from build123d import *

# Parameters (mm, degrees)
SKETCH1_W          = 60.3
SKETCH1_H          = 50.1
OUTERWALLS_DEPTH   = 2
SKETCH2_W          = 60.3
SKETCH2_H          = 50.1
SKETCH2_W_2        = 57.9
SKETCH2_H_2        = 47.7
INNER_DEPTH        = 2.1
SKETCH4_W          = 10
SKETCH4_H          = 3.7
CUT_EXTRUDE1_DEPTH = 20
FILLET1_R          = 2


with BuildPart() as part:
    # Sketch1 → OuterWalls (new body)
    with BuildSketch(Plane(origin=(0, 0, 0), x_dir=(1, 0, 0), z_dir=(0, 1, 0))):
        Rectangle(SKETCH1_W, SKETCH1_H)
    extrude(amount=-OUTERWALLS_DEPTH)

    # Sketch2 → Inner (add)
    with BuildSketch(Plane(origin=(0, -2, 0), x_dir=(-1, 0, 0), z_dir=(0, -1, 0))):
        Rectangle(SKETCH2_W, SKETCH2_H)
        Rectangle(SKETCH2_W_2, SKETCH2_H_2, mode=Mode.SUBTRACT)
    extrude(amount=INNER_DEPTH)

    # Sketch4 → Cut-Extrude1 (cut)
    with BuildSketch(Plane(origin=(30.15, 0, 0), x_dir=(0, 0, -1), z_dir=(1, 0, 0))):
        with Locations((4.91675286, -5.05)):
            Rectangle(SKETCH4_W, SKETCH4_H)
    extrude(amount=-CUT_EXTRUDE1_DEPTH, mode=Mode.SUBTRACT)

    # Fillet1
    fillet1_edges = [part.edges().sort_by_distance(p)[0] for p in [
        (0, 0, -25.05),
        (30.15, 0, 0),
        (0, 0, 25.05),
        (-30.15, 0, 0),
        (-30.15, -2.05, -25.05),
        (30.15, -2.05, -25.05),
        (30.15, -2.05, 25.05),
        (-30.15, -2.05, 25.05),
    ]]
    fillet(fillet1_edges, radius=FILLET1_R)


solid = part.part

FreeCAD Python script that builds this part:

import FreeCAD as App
import Part
import Sketcher


def edges_at(feature, points):
    """Names of the edges that pass closest to the given points."""
    edges = feature.Shape.Edges
    near = lambda p: min(range(len(edges)), key=lambda i: edges[i].distToShape(Part.Vertex(*p))[0])
    return sorted({f"Edge{near(p) + 1}" for p in points})

doc = App.newDocument("Part")
body = doc.addObject("PartDesign::Body", "Body")

sketch1 = doc.addObject("Sketcher::SketchObject", "Sketch")
body.addObject(sketch1)
sketch1.AttachmentSupport = (doc.XZ_Plane, [""])
sketch1.MapMode = "FlatFace"
sketch1.addGeometry(Part.LineSegment(App.Vector(-30, -25, 0), App.Vector(-30, 25, 0)), False)
sketch1.addGeometry(Part.LineSegment(App.Vector(-30, 25, 0), App.Vector(30, 25, 0)), False)
sketch1.addGeometry(Part.LineSegment(App.Vector(30, 25, 0), App.Vector(30, -25, 0)), False)
sketch1.addGeometry(Part.LineSegment(App.Vector(30, -25, 0), App.Vector(-30, -25, 0)), False)
sketch1.addConstraint(Sketcher.Constraint("Coincident", 0, 2, 1, 1))
sketch1.addConstraint(Sketcher.Constraint("Coincident", 1, 2, 2, 1))
sketch1.addConstraint(Sketcher.Constraint("Coincident", 2, 2, 3, 1))
sketch1.addConstraint(Sketcher.Constraint("Coincident", 3, 2, 0, 1))
sketch1.addConstraint(Sketcher.Constraint("Vertical", 0))
sketch1.addConstraint(Sketcher.Constraint("Horizontal", 1))
sketch1.addConstraint(Sketcher.Constraint("Vertical", 2))
sketch1.addConstraint(Sketcher.Constraint("Horizontal", 3))
sketch1.addConstraint(Sketcher.Constraint("Symmetric", 0, 2, 2, 2, -1, 1))
sketch1.addConstraint(Sketcher.Constraint("DistanceX", 1, 1, 1, 2, 60.3))
sketch1.addConstraint(Sketcher.Constraint("DistanceY", 0, 1, 0, 2, 50.1))
pad1 = doc.addObject("PartDesign::Pad", "Pad")
body.addObject(pad1)
pad1.Profile = sketch1
pad1.Length = 2

sketch2 = doc.addObject("Sketcher::SketchObject", "Sketch001")
body.addObject(sketch2)
sketch2.AttachmentSupport = (doc.XZ_Plane, [""])
sketch2.MapMode = "FlatFace"
sketch2.AttachmentOffset = App.Placement(App.Vector(0, 0, 2), App.Rotation())
sketch2.addGeometry(Part.LineSegment(App.Vector(30, -25, 0), App.Vector(30, 25, 0)), False)
sketch2.addGeometry(Part.LineSegment(App.Vector(30, 25, 0), App.Vector(-30, 25, 0)), False)
sketch2.addGeometry(Part.LineSegment(App.Vector(-30, 25, 0), App.Vector(-30, -25, 0)), False)
sketch2.addGeometry(Part.LineSegment(App.Vector(-30, -25, 0), App.Vector(30, -25, 0)), False)
sketch2.addGeometry(Part.LineSegment(App.Vector(-29, 24, 0), App.Vector(29, 24, 0)), False)
sketch2.addGeometry(Part.LineSegment(App.Vector(29, 24, 0), App.Vector(29, -24, 0)), False)
sketch2.addGeometry(Part.LineSegment(App.Vector(29, -24, 0), App.Vector(-29, -24, 0)), False)
sketch2.addGeometry(Part.LineSegment(App.Vector(-29, -24, 0), App.Vector(-29, 24, 0)), False)
sketch2.addConstraint(Sketcher.Constraint("Coincident", 0, 2, 1, 1))
sketch2.addConstraint(Sketcher.Constraint("Coincident", 1, 2, 2, 1))
sketch2.addConstraint(Sketcher.Constraint("Coincident", 2, 2, 3, 1))
sketch2.addConstraint(Sketcher.Constraint("Coincident", 3, 2, 0, 1))
sketch2.addConstraint(Sketcher.Constraint("Coincident", 4, 2, 5, 1))
sketch2.addConstraint(Sketcher.Constraint("Coincident", 5, 2, 6, 1))
sketch2.addConstraint(Sketcher.Constraint("Coincident", 6, 2, 7, 1))
sketch2.addConstraint(Sketcher.Constraint("Coincident", 7, 2, 4, 1))
sketch2.addConstraint(Sketcher.Constraint("Vertical", 0))
sketch2.addConstraint(Sketcher.Constraint("Horizontal", 1))
sketch2.addConstraint(Sketcher.Constraint("Vertical", 2))
sketch2.addConstraint(Sketcher.Constraint("Horizontal", 3))
sketch2.addConstraint(Sketcher.Constraint("Horizontal", 4))
sketch2.addConstraint(Sketcher.Constraint("Vertical", 5))
sketch2.addConstraint(Sketcher.Constraint("Horizontal", 6))
sketch2.addConstraint(Sketcher.Constraint("Vertical", 7))
sketch2.addConstraint(Sketcher.Constraint("Symmetric", 0, 2, 2, 2, -1, 1))
sketch2.addConstraint(Sketcher.Constraint("Symmetric", 4, 2, 6, 2, -1, 1))
sketch2.addConstraint(Sketcher.Constraint("DistanceX", 1, 2, 1, 1, 60.3))
sketch2.addConstraint(Sketcher.Constraint("DistanceX", 4, 1, 4, 2, 57.9))
sketch2.addConstraint(Sketcher.Constraint("DistanceY", 0, 1, 0, 2, 50.1))
sketch2.addConstraint(Sketcher.Constraint("DistanceY", 5, 2, 5, 1, 47.7))
pad2 = doc.addObject("PartDesign::Pad", "Pad001")
body.addObject(pad2)
pad2.Profile = sketch2
pad2.Length = 2.1

sketch3 = doc.addObject("Sketcher::SketchObject", "Sketch002")
body.addObject(sketch3)
sketch3.AttachmentSupport = (doc.YZ_Plane, [""])
sketch3.MapMode = "FlatFace"
sketch3.AttachmentOffset = App.Placement(App.Vector(0, 0, 30.15), App.Rotation())
sketch3.addGeometry(Part.LineSegment(App.Vector(-3.2, 0.1, 0), App.Vector(-6.9, 0.1, 0)), False)
sketch3.addGeometry(Part.LineSegment(App.Vector(-6.9, 0.1, 0), App.Vector(-6.9, -9.9, 0)), False)
sketch3.addGeometry(Part.LineSegment(App.Vector(-6.9, -9.9, 0), App.Vector(-3.2, -9.9, 0)), False)
sketch3.addGeometry(Part.LineSegment(App.Vector(-3.2, -9.9, 0), App.Vector(-3.2, 0.1, 0)), False)
sketch3.addConstraint(Sketcher.Constraint("Coincident", 0, 2, 1, 1))
sketch3.addConstraint(Sketcher.Constraint("Coincident", 1, 2, 2, 1))
sketch3.addConstraint(Sketcher.Constraint("Coincident", 2, 2, 3, 1))
sketch3.addConstraint(Sketcher.Constraint("Coincident", 3, 2, 0, 1))
sketch3.addConstraint(Sketcher.Constraint("Horizontal", 0))
sketch3.addConstraint(Sketcher.Constraint("Vertical", 1))
sketch3.addConstraint(Sketcher.Constraint("Horizontal", 2))
sketch3.addConstraint(Sketcher.Constraint("Vertical", 3))
sketch3.addConstraint(Sketcher.Constraint("DistanceY", 1, 2, 1, 1, 10.0))
sketch3.addConstraint(Sketcher.Constraint("DistanceX", 0, 2, 0, 1, 3.7))
sketch3.addConstraint(Sketcher.Constraint("DistanceX", 0, 2, -1, 1, 6.9))
sketch3.addConstraint(Sketcher.Constraint("DistanceY", -1, 1, 0, 2, 0.083247))
pocket1 = doc.addObject("PartDesign::Pocket", "Pocket")
body.addObject(pocket1)
pocket1.Profile = sketch3
pocket1.Length = 20
doc.recompute()

fillet = doc.addObject("PartDesign::Fillet", "Fillet")
body.addObject(fillet)
fillet.Base = (pocket1, edges_at(pocket1, [
    (0, 0, -25.05),
    (30.15, 0, 0),
    (0, 0, 25.05),
    (-30.15, 0, 0),
    (-30.15, -2.05, -25.05),
    (30.15, -2.05, -25.05),
    (30.15, -2.05, 25.05),
    (-30.15, -2.05, 25.05),
]))
fillet.Radius = 2

doc.recompute()
